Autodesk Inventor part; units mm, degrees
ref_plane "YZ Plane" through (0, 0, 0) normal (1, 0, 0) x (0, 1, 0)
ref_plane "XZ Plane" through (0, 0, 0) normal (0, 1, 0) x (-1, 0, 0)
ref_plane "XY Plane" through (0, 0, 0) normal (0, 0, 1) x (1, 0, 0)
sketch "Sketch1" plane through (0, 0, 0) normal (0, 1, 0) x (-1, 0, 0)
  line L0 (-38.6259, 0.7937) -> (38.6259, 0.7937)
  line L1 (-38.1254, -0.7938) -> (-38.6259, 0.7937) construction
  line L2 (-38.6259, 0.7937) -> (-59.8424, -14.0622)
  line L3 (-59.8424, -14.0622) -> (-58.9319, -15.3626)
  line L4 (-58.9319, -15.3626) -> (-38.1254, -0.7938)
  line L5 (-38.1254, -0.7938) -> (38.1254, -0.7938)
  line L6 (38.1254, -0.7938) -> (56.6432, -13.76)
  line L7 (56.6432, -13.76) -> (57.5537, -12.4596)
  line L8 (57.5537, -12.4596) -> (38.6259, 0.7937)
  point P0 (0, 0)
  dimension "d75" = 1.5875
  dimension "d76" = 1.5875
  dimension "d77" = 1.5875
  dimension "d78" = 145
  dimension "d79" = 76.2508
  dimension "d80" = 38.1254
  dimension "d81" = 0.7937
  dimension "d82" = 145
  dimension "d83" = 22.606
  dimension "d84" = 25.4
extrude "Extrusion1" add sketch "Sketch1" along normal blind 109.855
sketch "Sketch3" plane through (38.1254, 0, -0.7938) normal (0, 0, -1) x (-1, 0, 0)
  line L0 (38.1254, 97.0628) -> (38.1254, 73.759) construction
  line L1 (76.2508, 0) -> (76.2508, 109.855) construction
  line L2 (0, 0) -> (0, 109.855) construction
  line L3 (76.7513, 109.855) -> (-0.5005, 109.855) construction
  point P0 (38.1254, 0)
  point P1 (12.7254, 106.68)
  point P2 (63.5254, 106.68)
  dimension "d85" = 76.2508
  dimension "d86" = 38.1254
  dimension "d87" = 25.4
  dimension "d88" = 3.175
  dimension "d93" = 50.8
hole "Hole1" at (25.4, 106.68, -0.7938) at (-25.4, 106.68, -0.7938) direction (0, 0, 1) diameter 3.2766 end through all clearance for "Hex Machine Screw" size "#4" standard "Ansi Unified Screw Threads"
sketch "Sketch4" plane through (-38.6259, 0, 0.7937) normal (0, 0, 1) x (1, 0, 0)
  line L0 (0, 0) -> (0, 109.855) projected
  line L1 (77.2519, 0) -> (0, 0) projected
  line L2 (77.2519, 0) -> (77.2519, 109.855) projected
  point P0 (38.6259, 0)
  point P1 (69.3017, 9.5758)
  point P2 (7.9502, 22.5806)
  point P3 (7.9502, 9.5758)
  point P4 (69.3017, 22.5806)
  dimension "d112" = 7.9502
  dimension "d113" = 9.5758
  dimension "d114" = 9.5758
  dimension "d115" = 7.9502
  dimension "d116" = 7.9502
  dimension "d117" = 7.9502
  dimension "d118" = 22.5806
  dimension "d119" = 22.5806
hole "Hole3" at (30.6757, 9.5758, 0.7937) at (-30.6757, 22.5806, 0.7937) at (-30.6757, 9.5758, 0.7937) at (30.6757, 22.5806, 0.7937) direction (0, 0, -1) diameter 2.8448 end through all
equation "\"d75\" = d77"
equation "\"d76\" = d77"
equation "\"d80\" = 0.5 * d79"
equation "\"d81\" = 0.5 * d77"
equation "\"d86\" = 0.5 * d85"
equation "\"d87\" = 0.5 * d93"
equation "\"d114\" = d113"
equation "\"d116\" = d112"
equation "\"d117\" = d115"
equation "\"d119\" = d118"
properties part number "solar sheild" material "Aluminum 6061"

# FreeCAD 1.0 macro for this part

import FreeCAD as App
import Part
import Sketcher

V = App.Vector
Q = App.Units.Quantity

doc = App.newDocument("Part")
body = doc.addObject("PartDesign::Body", "Body")

# Sketch on XZ plane
sketch1 = body.newObject("Sketcher::SketchObject", "Sketch")
sketch1.AttachmentSupport = (doc.getObject("XZ_Plane"), [""])
sketch1.MapMode = "FlatFace"
sketch1.addGeometry([
    Part.LineSegment(V(-38.6, 0.8, 0), V(38.6, 0.8, 0)),  # 0
    Part.LineSegment(V(38.6, 0.8, 0), V(59.8, -14.1, 0)),  # 1
    Part.LineSegment(V(59.8, -14.1, 0), V(58.9, -15.4, 0)),  # 2
    Part.LineSegment(V(58.9, -15.4, 0), V(38.1, -0.8, 0)),  # 3
    Part.LineSegment(V(38.1, -0.8, 0), V(-38.1, -0.8, 0)),  # 4
    Part.LineSegment(V(-38.1, -0.8, 0), V(-56.6, -13.8, 0)),  # 5
    Part.LineSegment(V(-56.6, -13.8, 0), V(-57.6, -12.5, 0)),  # 6
    Part.LineSegment(V(-57.6, -12.5, 0), V(-38.6, 0.8, 0)),  # 7
], False)
sketch1.addConstraint([
    Sketcher.Constraint("Coincident", 0, 2, 1, 1),
    Sketcher.Constraint("Coincident", 1, 2, 2, 1),
    Sketcher.Constraint("Coincident", 2, 2, 3, 1),
    Sketcher.Constraint("Coincident", 3, 2, 4, 1),
    Sketcher.Constraint("Coincident", 4, 2, 5, 1),
    Sketcher.Constraint("Coincident", 5, 2, 6, 1),
    Sketcher.Constraint("Coincident", 6, 2, 7, 1),
    Sketcher.Constraint("Coincident", 7, 2, 0, 1),
    Sketcher.Constraint("Horizontal", 0),
    Sketcher.Constraint("Horizontal", 4),
    Sketcher.Constraint("Perpendicular", 1, 2),
    Sketcher.Constraint("Perpendicular", 2, 3),
    Sketcher.Constraint("Perpendicular", 5, 6),
    Sketcher.Constraint("Perpendicular", 6, 7),
    Sketcher.Constraint("Equal", 2, 6),
    Sketcher.Constraint("Distance", 3, Q("1 in")),
    Sketcher.Constraint("Angle", 3, Q("145.0001 deg")),
    Sketcher.Constraint("Angle", 5, Q("-145.0002 deg")),
    Sketcher.Constraint("Distance", 5, Q("0.89 in")),
    Sketcher.Constraint("DistanceX", 4, 2, 4, 1, Q("3.002 in")),
    Sketcher.Constraint("Distance", 2, Q("0.0625 in")),
    Sketcher.Constraint("DistanceY", -1, 1, 0, 2, Q("0.031248 in")),
    Sketcher.Constraint("DistanceX", -1, 1, 3, 2, Q("1.501 in")),
    Sketcher.Constraint("DistanceY", 3, 2, -1, 1, Q("0.031252 in")),
])
pad1 = body.newObject("PartDesign::Pad", "Pad")
pad1.Profile = sketch1
pad1.Length = Q("4.325 in")
pad1.Reversed = True

# Sketch on XY plane
sketch2 = body.newObject("Sketcher::SketchObject", "Sketch001")
sketch2.AttachmentSupport = (doc.getObject("XY_Plane"), [""])
sketch2.MapMode = "FlatFace"
sketch2.AttachmentOffset = App.Placement(V(0, 0, -0.031252 * 25.4), App.Rotation())
sketch2.addGeometry([
    Part.Circle(V(25.4, 106.7, 0), V(0, 0, 1), 1.6),
    Part.Circle(V(-25.4, 106.7, 0), V(0, 0, 1), 1.6),
], False)
sketch2.addConstraint([
    Sketcher.Constraint("Equal", 0, 1),
    Sketcher.Constraint("Symmetric", 0, 3, 1, 3, -2),
    Sketcher.Constraint("Diameter", 0, Q("0.129 in")),
    Sketcher.Constraint("DistanceX", -1, 1, 0, 3, Q("1 in")),
    Sketcher.Constraint("DistanceY", -1, 1, 0, 3, Q("4.2 in")),
])
doc.recompute()
hole = body.newObject("PartDesign::Hole", "Hole")
hole.Profile = sketch2
hole.ThreadType = "None"
hole.Diameter = Q("0.129 in")
hole.DepthType = "ThroughAll"
hole.Reversed = True

# Sketch on XY plane
sketch3 = body.newObject("Sketcher::SketchObject", "Sketch002")
sketch3.AttachmentSupport = (doc.getObject("XY_Plane"), [""])
sketch3.MapMode = "FlatFace"
sketch3.AttachmentOffset = App.Placement(V(0, 0, 0.031248 * 25.4), App.Rotation())
sketch3.addGeometry([
    Part.Circle(V(30.7, 9.6, 0), V(0, 0, 1), 1.4),
    Part.Circle(V(-30.7, 22.6, 0), V(0, 0, 1), 1.4),
    Part.Circle(V(-30.7, 9.6, 0), V(0, 0, 1), 1.4),
    Part.Circle(V(30.7, 22.6, 0), V(0, 0, 1), 1.4),
], False)
sketch3.addConstraint([
    Sketcher.Constraint("Equal", 0, 1),
    Sketcher.Constraint("Equal", 1, 2),
    Sketcher.Constraint("Equal", 2, 3),
    Sketcher.Constraint("Symmetric", 0, 3, 2, 3, -2),
    Sketcher.Constraint("Symmetric", 1, 3, 3, 3, -2),
    Sketcher.Constraint("Vertical", 1, 3, 2, 3),
    Sketcher.Constraint("Diameter", 0, Q("0.112 in")),
    Sketcher.Constraint("DistanceY", -1, 1, 0, 3, Q("0.377 in")),
    Sketcher.Constraint("DistanceY", -1, 1, 1, 3, Q("0.889 in")),
    Sketcher.Constraint("DistanceX", -1, 1, 0, 3, Q("1.2077 in")),
])
doc.recompute()
hole2 = body.newObject("PartDesign::Hole", "Hole001")
hole2.Profile = sketch3
hole2.ThreadType = "None"
hole2.Diameter = Q("0.112 in")
hole2.DepthType = "ThroughAll"

doc.recompute()
